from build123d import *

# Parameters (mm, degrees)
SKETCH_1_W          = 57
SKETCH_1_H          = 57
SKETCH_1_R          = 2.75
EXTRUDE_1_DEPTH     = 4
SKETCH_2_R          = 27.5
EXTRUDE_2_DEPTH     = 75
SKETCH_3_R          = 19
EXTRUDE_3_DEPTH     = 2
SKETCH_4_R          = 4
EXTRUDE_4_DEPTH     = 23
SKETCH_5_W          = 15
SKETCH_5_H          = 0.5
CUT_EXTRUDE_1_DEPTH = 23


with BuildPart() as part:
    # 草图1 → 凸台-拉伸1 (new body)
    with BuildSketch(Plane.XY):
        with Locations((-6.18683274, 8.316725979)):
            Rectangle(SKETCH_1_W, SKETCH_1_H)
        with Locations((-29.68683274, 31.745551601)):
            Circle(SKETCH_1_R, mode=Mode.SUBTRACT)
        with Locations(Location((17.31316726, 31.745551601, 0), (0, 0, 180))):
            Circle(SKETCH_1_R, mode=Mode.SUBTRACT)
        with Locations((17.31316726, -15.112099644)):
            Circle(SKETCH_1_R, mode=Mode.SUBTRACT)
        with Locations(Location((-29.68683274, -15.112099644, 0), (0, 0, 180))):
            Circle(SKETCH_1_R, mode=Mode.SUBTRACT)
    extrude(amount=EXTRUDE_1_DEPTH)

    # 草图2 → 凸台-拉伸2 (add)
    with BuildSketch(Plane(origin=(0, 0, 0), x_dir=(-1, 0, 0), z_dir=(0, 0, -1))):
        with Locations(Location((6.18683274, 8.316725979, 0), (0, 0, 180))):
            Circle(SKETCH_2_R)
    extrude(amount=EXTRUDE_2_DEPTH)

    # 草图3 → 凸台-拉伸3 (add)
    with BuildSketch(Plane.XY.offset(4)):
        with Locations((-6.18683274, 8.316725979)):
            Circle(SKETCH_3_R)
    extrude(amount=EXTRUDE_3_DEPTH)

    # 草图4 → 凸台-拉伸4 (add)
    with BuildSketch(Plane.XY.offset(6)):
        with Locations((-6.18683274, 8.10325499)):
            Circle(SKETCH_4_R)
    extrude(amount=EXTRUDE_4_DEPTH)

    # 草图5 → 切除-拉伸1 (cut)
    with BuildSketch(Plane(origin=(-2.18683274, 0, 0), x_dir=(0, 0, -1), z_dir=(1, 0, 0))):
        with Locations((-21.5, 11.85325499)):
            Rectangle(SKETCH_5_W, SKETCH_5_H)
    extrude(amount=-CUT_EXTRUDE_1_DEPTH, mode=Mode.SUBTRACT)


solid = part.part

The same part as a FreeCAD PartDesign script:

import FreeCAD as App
import Part
import Sketcher

doc = App.newDocument("Part")
body = doc.addObject("PartDesign::Body", "Body")

sketch1 = body.newObject("Sketcher::SketchObject", "Sketch")
sketch1.AttachmentSupport = (doc.getObject("XY_Plane"), [""])
sketch1.MapMode = "FlatFace"
sketch1.addGeometry(Part.LineSegment(App.Vector(-34.7, 36.8, 0), App.Vector(-34.7, -20.2, 0)), False)
sketch1.addGeometry(Part.LineSegment(App.Vector(-34.7, -20.2, 0), App.Vector(22.3, -20.2, 0)), False)
sketch1.addGeometry(Part.LineSegment(App.Vector(22.3, -20.2, 0), App.Vector(22.3, 36.8, 0)), False)
sketch1.addGeometry(Part.LineSegment(App.Vector(22.3, 36.8, 0), App.Vector(-34.7, 36.8, 0)), False)
sketch1.addGeometry(Part.Circle(App.Vector(-29.7, -15.1, 0), App.Vector(0, 0, 1), 2.8), False)
sketch1.addGeometry(Part.Circle(App.Vector(17.3, -15.1, 0), App.Vector(0, 0, 1), 2.8), False)
sketch1.addGeometry(Part.Circle(App.Vector(-29.7, 31.7, 0), App.Vector(0, 0, 1), 2.8), False)
sketch1.addGeometry(Part.Circle(App.Vector(17.3, 31.7, 0), App.Vector(0, 0, 1), 2.8), False)
sketch1.addConstraint(Sketcher.Constraint("Coincident", 0, 2, 1, 1))
sketch1.addConstraint(Sketcher.Constraint("Coincident", 1, 2, 2, 1))
sketch1.addConstraint(Sketcher.Constraint("Coincident", 2, 2, 3, 1))
sketch1.addConstraint(Sketcher.Constraint("Coincident", 3, 2, 0, 1))
sketch1.addConstraint(Sketcher.Constraint("Vertical", 0))
sketch1.addConstraint(Sketcher.Constraint("Horizontal", 1))
sketch1.addConstraint(Sketcher.Constraint("Vertical", 2))
sketch1.addConstraint(Sketcher.Constraint("Horizontal", 3))
sketch1.addConstraint(Sketcher.Constraint("Equal", 4, 5))
sketch1.addConstraint(Sketcher.Constraint("Equal", 5, 6))
sketch1.addConstraint(Sketcher.Constraint("Equal", 6, 7))
sketch1.addConstraint(Sketcher.Constraint("Horizontal", 4, 3, 5, 3))
sketch1.addConstraint(Sketcher.Constraint("Horizontal", 6, 3, 7, 3))
sketch1.addConstraint(Sketcher.Constraint("Vertical", 4, 3, 6, 3))
sketch1.addConstraint(Sketcher.Constraint("Vertical", 5, 3, 7, 3))
sketch1.addConstraint(Sketcher.Constraint("Equal", 3, 0))
sketch1.addConstraint(Sketcher.Constraint("Diameter", 4, 5.5))
sketch1.addConstraint(Sketcher.Constraint("DistanceX", 1, 1, 1, 2, 57.0))
sketch1.addConstraint(Sketcher.Constraint("DistanceX", 4, 3, 5, 3, 47.0))
sketch1.addConstraint(Sketcher.Constraint("DistanceX", 0, 2, 4, 3, 5.0))
sketch1.addConstraint(Sketcher.Constraint("DistanceY", 4, 3, -1, 1, 15.1121))
sketch1.addConstraint(Sketcher.Constraint("DistanceY", -1, 1, 6, 3, 31.745552))
sketch1.addConstraint(Sketcher.Constraint("DistanceX", 4, 3, -1, 1, 29.686833))
sketch1.addConstraint(Sketcher.Constraint("DistanceY", 0, 2, -1, 1, 20.183274))
pad1 = body.newObject("PartDesign::Pad", "Pad")
pad1.Profile = sketch1
pad1.Length = 4

sketch2 = body.newObject("Sketcher::SketchObject", "Sketch001")
sketch2.AttachmentSupport = (doc.getObject("XY_Plane"), [""])
sketch2.MapMode = "FlatFace"
sketch2.addGeometry(Part.Circle(App.Vector(-6, 8, 0), App.Vector(0, 0, 1), 28), False)
sketch2.addConstraint(Sketcher.Constraint("Diameter", 0, 55.0))
sketch2.addConstraint(Sketcher.Constraint("DistanceX", 0, 3, -1, 1, 6.186833))
sketch2.addConstraint(Sketcher.Constraint("DistanceY", -1, 1, 0, 3, 8.316726))
pad2 = body.newObject("PartDesign::Pad", "Pad001")
pad2.Profile = sketch2
pad2.Length = 75
pad2.Reversed = True

sketch3 = body.newObject("Sketcher::SketchObject", "Sketch002")
sketch3.AttachmentSupport = (doc.getObject("XY_Plane"), [""])
sketch3.MapMode = "FlatFace"
sketch3.AttachmentOffset = App.Placement(App.Vector(0, 0, 4), App.Rotation())
sketch3.addGeometry(Part.Circle(App.Vector(-6, 8, 0), App.Vector(0, 0, 1), 19), False)
sketch3.addConstraint(Sketcher.Constraint("Diameter", 0, 38.0))
sketch3.addConstraint(Sketcher.Constraint("DistanceX", 0, 3, -1, 1, 6.186833))
sketch3.addConstraint(Sketcher.Constraint("DistanceY", -1, 1, 0, 3, 8.316726))
pad3 = body.newObject("PartDesign::Pad", "Pad002")
pad3.Profile = sketch3
pad3.Length = 2

sketch4 = body.newObject("Sketcher::SketchObject", "Sketch003")
sketch4.AttachmentSupport = (doc.getObject("XY_Plane"), [""])
sketch4.MapMode = "FlatFace"
sketch4.AttachmentOffset = App.Placement(App.Vector(0, 0, 6), App.Rotation())
sketch4.addGeometry(Part.Circle(App.Vector(-6.2, 8.1, 0), App.Vector(0, 0, 1), 4), False)
sketch4.addConstraint(Sketcher.Constraint("Diameter", 0, 8.0))
sketch4.addConstraint(Sketcher.Constraint("DistanceX", 0, 3, -1, 1, 6.186833))
sketch4.addConstraint(Sketcher.Constraint("DistanceY", -1, 1, 0, 3, 8.103255))
pad4 = body.newObject("PartDesign::Pad", "Pad003")
pad4.Profile = sketch4
pad4.Length = 23

sketch5 = body.newObject("Sketcher::SketchObject", "Sketch004")
sketch5.AttachmentSupport = (doc.getObject("YZ_Plane"), [""])
sketch5.MapMode = "FlatFace"
sketch5.AttachmentOffset = App.Placement(App.Vector(0, 0, -2.186833), App.Rotation())
sketch5.addGeometry(Part.LineSegment(App.Vector(12.1, 29, 0), App.Vector(11.6, 29, 0)), False)
sketch5.addGeometry(Part.LineSegment(App.Vector(11.6, 29, 0), App.Vector(11.6, 14, 0)), False)
sketch5.addGeometry(Part.LineSegment(App.Vector(11.6, 14, 0), App.Vector(12.1, 14, 0)), False)
sketch5.addGeometry(Part.LineSegment(App.Vector(12.1, 14, 0), App.Vector(12.1, 29, 0)), False)
sketch5.addConstraint(Sketcher.Constraint("Coincident", 0, 2, 1, 1))
sketch5.addConstraint(Sketcher.Constraint("Coincident", 1, 2, 2, 1))
sketch5.addConstraint(Sketcher.Constraint("Coincident", 2, 2, 3, 1))
sketch5.addConstraint(Sketcher.Constraint("Coincident", 3, 2, 0, 1))
sketch5.addConstraint(Sketcher.Constraint("Horizontal", 0))
sketch5.addConstraint(Sketcher.Constraint("Vertical", 1))
sketch5.addConstraint(Sketcher.Constraint("Horizontal", 2))
sketch5.addConstraint(Sketcher.Constraint("Vertical", 3))
sketch5.addConstraint(Sketcher.Constraint("DistanceY", 1, 2, 1, 1, 15.0))
sketch5.addConstraint(Sketcher.Constraint("DistanceX", 0, 2, 0, 1, 0.5))
sketch5.addConstraint(Sketcher.Constraint("DistanceY", -1, 1, 0, 2, 29.0))
sketch5.addConstraint(Sketcher.Constraint("DistanceX", -1, 1, 0, 2, 11.603255))
pocket1 = body.newObject("PartDesign::Pocket", "Pocket")
pocket1.Profile = sketch5
pocket1.Length = 23

doc.recompute()
